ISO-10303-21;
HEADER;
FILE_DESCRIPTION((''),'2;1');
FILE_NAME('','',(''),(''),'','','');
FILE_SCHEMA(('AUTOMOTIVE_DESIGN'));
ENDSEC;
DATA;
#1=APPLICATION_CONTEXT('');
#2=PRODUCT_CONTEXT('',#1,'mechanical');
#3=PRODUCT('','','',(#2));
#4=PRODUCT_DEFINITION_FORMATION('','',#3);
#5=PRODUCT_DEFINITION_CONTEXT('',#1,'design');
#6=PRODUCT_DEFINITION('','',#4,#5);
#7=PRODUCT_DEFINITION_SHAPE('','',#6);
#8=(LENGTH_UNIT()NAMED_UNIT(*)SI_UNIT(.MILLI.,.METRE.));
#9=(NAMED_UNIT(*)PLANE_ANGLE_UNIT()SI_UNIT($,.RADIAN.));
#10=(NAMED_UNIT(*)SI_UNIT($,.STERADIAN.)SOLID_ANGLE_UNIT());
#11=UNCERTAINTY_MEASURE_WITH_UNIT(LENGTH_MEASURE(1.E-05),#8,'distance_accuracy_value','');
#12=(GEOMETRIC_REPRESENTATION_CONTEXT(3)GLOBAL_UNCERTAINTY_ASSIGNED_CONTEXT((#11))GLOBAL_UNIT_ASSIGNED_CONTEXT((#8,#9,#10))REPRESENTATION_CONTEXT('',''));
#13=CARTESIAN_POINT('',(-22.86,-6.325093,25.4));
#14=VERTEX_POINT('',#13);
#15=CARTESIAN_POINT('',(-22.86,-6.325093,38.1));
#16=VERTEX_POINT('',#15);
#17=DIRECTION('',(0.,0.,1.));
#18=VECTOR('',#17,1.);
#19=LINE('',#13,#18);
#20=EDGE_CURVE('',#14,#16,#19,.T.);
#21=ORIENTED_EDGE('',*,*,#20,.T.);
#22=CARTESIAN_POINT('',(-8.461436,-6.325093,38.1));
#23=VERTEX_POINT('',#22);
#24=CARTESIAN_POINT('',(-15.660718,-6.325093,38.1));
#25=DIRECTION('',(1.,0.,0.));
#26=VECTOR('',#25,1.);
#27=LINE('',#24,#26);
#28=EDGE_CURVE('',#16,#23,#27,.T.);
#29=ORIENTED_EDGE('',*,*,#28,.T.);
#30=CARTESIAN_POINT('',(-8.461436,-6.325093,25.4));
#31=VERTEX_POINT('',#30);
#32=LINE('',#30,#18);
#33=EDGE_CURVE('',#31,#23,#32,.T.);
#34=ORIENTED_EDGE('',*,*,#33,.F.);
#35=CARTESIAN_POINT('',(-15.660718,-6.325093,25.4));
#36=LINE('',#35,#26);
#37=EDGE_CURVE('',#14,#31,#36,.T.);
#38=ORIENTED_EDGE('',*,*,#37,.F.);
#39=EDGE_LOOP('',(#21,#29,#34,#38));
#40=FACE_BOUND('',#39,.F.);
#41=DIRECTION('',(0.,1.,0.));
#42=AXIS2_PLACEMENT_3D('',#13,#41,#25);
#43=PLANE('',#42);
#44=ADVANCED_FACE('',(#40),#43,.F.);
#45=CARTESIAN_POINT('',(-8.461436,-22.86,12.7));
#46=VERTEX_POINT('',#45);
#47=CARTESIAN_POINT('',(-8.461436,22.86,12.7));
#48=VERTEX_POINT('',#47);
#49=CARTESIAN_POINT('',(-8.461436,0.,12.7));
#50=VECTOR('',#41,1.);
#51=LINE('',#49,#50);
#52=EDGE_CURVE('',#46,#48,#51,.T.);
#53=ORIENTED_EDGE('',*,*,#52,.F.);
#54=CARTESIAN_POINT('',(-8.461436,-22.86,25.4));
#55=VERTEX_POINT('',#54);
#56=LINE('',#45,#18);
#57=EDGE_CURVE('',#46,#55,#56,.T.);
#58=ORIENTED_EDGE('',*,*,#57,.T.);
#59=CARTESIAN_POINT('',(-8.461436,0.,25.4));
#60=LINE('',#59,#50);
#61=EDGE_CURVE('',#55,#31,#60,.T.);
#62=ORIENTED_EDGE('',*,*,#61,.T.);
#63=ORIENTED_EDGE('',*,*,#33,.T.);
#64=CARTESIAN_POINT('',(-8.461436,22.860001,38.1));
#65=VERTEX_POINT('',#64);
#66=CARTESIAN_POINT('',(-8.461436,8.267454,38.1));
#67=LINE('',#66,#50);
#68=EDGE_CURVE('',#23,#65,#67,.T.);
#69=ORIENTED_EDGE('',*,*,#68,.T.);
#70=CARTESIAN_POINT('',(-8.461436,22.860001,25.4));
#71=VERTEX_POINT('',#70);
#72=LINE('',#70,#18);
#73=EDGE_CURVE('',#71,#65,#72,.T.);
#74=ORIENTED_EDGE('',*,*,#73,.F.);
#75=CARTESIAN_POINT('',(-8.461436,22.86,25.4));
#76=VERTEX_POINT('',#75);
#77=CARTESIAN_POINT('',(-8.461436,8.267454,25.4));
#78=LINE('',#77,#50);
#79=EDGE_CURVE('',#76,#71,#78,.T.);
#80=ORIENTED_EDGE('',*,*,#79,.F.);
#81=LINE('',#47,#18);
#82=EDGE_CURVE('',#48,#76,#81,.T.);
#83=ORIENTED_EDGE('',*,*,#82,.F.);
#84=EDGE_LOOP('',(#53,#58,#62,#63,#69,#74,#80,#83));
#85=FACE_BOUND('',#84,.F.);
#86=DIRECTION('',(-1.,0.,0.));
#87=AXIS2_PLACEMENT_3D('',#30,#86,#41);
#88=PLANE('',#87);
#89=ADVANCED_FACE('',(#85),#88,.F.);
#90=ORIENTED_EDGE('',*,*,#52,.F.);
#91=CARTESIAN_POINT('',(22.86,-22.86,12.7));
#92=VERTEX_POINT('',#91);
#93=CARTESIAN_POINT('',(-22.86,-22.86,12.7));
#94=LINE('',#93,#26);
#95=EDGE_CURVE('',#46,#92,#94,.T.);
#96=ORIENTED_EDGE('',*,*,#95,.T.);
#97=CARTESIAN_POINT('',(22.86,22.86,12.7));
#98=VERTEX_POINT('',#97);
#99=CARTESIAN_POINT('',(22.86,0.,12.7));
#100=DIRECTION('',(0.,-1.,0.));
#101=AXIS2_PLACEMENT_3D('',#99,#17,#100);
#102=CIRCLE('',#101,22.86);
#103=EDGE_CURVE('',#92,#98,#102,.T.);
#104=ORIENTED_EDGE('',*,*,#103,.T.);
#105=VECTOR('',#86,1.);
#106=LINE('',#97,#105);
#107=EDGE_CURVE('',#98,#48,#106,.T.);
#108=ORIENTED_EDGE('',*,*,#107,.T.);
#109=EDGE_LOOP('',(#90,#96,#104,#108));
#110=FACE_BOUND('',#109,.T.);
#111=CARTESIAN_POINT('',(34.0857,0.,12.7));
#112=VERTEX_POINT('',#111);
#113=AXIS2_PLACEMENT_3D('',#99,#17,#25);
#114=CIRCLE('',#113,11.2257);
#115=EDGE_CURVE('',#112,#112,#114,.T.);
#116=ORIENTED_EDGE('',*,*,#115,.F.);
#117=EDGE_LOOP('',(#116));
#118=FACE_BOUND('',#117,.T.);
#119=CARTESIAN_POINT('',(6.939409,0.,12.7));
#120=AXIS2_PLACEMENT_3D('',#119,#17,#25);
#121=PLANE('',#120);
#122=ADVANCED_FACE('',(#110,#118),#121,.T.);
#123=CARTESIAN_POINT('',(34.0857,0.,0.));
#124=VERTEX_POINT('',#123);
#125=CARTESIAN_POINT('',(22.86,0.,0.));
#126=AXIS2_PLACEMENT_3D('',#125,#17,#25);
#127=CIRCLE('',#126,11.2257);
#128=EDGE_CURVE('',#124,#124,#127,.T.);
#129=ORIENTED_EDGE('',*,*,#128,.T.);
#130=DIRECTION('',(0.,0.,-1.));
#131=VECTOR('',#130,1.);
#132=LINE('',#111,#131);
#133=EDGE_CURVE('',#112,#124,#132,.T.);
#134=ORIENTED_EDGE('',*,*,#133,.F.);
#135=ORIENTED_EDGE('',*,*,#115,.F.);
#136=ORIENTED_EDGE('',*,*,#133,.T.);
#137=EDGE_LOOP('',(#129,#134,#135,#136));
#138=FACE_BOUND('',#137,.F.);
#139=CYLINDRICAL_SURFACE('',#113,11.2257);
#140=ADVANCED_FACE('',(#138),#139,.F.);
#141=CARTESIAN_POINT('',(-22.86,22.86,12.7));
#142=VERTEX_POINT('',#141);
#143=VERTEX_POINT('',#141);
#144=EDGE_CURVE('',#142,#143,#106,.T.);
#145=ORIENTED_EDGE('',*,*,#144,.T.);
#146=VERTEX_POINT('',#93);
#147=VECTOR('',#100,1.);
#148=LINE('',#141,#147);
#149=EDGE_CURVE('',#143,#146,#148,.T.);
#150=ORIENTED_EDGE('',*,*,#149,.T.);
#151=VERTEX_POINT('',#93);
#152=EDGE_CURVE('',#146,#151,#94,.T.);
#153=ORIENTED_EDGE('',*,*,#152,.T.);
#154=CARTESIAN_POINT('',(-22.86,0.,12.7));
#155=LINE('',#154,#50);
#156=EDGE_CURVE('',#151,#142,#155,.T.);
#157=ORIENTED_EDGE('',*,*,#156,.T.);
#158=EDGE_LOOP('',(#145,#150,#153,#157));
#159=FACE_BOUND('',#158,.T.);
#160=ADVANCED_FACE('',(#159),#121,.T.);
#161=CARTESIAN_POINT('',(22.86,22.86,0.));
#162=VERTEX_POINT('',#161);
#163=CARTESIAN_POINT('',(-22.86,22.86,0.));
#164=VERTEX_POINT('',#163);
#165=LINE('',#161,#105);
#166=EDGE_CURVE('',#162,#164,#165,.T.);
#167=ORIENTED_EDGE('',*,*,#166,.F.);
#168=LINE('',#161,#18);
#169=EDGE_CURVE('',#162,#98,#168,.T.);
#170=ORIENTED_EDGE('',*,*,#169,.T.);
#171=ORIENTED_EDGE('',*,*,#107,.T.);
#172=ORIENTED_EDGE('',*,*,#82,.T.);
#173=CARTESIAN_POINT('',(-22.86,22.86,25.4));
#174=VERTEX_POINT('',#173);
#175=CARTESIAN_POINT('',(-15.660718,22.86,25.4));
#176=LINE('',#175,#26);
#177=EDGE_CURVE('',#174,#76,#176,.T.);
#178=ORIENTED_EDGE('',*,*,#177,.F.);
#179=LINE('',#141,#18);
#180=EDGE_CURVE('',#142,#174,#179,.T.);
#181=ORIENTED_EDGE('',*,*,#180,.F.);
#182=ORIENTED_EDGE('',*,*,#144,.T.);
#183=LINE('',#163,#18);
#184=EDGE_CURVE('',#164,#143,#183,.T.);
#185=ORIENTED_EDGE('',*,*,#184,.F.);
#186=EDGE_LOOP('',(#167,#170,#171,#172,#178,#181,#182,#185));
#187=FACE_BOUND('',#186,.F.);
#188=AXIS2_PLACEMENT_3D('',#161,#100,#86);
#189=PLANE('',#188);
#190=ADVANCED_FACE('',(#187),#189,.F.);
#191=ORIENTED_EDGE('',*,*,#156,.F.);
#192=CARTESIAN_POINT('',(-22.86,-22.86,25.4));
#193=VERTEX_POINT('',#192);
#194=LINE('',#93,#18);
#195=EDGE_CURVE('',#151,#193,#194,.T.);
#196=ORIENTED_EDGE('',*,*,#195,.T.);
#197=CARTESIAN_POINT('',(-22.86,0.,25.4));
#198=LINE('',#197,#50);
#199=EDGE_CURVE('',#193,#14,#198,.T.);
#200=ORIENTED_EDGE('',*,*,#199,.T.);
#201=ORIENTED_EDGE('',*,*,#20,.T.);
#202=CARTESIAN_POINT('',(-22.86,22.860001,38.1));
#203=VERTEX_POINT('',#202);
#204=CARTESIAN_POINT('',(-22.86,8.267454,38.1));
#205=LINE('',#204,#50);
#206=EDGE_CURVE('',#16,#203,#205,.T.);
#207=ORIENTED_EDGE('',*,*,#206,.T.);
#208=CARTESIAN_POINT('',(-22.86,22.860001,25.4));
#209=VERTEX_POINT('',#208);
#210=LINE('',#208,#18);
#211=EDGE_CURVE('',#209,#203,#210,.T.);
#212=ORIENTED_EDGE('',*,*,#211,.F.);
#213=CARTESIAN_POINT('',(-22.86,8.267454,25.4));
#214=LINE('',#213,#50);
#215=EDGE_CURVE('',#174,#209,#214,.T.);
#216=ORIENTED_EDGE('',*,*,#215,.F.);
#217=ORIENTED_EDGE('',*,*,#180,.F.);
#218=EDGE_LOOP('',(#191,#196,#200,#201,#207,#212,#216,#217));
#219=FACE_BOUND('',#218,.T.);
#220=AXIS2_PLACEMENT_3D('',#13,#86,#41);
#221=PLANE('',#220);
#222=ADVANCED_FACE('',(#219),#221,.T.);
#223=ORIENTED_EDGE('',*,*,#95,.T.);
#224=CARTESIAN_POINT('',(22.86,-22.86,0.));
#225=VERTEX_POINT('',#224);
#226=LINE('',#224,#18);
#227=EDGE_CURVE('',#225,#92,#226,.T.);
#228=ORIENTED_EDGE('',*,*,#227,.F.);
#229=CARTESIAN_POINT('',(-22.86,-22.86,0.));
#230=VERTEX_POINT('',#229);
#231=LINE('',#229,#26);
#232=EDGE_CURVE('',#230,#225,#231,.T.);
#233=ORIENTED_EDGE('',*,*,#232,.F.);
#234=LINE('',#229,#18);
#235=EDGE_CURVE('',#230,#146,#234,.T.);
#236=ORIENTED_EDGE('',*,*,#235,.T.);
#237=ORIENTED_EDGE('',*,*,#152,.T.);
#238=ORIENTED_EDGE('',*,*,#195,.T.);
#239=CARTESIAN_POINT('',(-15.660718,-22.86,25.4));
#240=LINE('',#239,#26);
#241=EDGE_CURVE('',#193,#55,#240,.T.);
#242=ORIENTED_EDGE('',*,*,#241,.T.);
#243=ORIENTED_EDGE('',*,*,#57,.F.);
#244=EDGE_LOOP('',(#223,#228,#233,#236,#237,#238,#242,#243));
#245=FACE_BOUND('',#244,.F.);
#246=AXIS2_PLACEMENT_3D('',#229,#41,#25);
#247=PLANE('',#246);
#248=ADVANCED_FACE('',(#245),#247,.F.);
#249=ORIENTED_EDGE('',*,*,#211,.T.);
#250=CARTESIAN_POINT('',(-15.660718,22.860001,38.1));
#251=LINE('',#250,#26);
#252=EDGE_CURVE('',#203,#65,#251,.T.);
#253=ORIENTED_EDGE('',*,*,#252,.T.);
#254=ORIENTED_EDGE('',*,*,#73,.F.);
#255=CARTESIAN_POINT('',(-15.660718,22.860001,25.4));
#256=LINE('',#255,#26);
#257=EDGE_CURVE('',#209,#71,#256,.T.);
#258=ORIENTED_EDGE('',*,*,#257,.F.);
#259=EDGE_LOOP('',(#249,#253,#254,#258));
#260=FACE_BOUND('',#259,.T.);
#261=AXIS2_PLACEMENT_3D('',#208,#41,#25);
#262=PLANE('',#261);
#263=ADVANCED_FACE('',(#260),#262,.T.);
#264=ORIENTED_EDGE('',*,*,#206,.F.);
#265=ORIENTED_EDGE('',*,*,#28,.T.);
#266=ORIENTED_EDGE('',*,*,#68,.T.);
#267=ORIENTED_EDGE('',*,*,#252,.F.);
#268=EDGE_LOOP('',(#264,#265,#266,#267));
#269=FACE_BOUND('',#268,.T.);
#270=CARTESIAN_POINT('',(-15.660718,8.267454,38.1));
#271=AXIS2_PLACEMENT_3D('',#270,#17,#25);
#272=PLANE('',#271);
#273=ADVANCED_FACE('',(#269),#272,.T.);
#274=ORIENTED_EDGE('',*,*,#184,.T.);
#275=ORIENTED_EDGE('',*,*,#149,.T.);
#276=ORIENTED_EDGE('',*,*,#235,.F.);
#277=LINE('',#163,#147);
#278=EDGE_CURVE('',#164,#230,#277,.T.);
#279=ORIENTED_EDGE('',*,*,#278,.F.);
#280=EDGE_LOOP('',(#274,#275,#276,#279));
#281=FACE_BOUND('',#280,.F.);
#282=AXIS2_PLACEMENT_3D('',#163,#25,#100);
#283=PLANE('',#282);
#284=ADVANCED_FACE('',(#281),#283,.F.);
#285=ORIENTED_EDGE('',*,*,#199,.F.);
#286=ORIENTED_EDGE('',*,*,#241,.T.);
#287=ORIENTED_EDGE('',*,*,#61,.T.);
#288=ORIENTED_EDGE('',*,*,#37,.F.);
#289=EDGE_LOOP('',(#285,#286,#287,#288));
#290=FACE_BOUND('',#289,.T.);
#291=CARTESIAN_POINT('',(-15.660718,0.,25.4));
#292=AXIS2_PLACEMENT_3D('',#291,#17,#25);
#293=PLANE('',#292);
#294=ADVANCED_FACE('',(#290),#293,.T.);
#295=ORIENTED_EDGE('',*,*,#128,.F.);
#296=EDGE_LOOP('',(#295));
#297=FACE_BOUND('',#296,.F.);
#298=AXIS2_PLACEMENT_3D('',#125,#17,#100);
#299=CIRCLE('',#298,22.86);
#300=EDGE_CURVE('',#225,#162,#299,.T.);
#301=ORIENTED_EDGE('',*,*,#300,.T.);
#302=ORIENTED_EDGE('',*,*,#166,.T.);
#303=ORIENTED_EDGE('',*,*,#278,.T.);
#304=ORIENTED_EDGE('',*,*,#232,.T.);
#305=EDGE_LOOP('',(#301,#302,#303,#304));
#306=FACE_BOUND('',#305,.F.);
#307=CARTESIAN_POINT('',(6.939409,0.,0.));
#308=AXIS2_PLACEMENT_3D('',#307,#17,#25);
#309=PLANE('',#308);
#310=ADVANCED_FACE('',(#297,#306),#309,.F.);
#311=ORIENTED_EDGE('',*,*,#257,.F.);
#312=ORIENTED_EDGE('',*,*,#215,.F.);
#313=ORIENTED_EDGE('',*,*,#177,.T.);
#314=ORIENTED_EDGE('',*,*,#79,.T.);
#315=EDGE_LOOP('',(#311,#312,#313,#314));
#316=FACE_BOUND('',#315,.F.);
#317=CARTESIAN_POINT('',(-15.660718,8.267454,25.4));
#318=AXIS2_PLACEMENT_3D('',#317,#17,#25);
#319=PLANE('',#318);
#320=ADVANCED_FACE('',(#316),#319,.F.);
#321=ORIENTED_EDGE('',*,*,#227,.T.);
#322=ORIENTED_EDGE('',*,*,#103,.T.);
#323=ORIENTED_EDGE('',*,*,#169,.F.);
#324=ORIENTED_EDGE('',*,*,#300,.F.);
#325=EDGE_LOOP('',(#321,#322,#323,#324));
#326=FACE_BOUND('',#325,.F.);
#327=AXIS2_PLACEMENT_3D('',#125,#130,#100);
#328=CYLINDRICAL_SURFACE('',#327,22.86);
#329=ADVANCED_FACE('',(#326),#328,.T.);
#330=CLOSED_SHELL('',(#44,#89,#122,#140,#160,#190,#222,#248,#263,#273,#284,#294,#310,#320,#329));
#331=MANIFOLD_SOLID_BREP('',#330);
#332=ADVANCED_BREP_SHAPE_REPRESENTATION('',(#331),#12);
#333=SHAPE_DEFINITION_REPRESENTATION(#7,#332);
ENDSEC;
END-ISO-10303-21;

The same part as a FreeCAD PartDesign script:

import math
import FreeCAD as App
import Part
import Sketcher
from FreeCAD import Vector
Q = App.Units.Quantity

doc = App.newDocument("Part")
body = doc.addObject("PartDesign::Body", "Body")

# Sketch on XY plane
sketch1 = doc.addObject("Sketcher::SketchObject", "Sketch")
body.addObject(sketch1)
sketch1.AttachmentSupport = (doc.XY_Plane, [""])
sketch1.MapMode = "FlatFace"
sketch1.addGeometry([
    Part.LineSegment(Vector(-23, -23, 0), Vector(23, -23, 0)),
    Part.ArcOfCircle(Part.Circle(Vector(23, 0, 0), Vector(0, 0, 1), 23), math.radians(-90), math.radians(90)),
    Part.LineSegment(Vector(23, 23, 0), Vector(-23, 23, 0)),
    Part.LineSegment(Vector(-23, 23, 0), Vector(-23, -23, 0)),
], False)
sketch1.addConstraint([
    Sketcher.Constraint("Tangent", 0, 2, 1, 1),
    Sketcher.Constraint("Tangent", 1, 2, 2, 1),
    Sketcher.Constraint("Coincident", 2, 2, 3, 1),
    Sketcher.Constraint("Coincident", 3, 2, 0, 1),
    Sketcher.Constraint("Horizontal", 0),
    Sketcher.Constraint("Horizontal", 2),
    Sketcher.Constraint("Vertical", 3),
    Sketcher.Constraint("Symmetric", 0, 2, 2, 2, -1, 1),
    Sketcher.Constraint("Equal", 2, 3),
    Sketcher.Constraint("Radius", 1, Q("0.9 in")),
])
pad1 = doc.addObject("PartDesign::Pad", "Pad")
body.addObject(pad1)
pad1.Profile = sketch1
pad1.Length = Q("0.5 in")

# Sketch on XY plane
sketch2 = doc.addObject("Sketcher::SketchObject", "Sketch001")
body.addObject(sketch2)
sketch2.AttachmentSupport = (doc.XY_Plane, [""])
sketch2.MapMode = "FlatFace"
sketch2.AttachmentOffset = App.Placement(Vector(0, 0, 0.5 * 25.4), App.Rotation())
sketch2.addGeometry([
    Part.LineSegment(Vector(-23, 23, 0), Vector(-23, -23, 0)),
    Part.LineSegment(Vector(-23, -23, 0), Vector(-8, -23, 0)),
    Part.LineSegment(Vector(-8, -23, 0), Vector(-8, 23, 0)),
    Part.LineSegment(Vector(-8, 23, 0), Vector(-23, 23, 0)),
], False)
sketch2.addConstraint([
    Sketcher.Constraint("Coincident", 0, 2, 1, 1),
    Sketcher.Constraint("Coincident", 1, 2, 2, 1),
    Sketcher.Constraint("Coincident", 2, 2, 3, 1),
    Sketcher.Constraint("Coincident", 3, 2, 0, 1),
    Sketcher.Constraint("Vertical", 0),
    Sketcher.Constraint("Horizontal", 1),
    Sketcher.Constraint("Vertical", 2),
    Sketcher.Constraint("Horizontal", 3),
    Sketcher.Constraint("DistanceY", 0, 2, 0, 1, Q("1.8 in")),
    Sketcher.Constraint("DistanceX", 0, 2, -1, 1, Q("0.9 in")),
    Sketcher.Constraint("DistanceY", 0, 2, -1, 1, Q("0.9 in")),
    Sketcher.Constraint("DistanceX", 1, 1, 1, 2, 14.398563),
])
pad2 = doc.addObject("PartDesign::Pad", "Pad001")
body.addObject(pad2)
pad2.Profile = sketch2
pad2.Length = Q("0.5 in")

# Sketch on XY plane
sketch3 = doc.addObject("Sketcher::SketchObject", "Sketch002")
body.addObject(sketch3)
sketch3.AttachmentSupport = (doc.XY_Plane, [""])
sketch3.MapMode = "FlatFace"
sketch3.AttachmentOffset = App.Placement(Vector(0, 0, 1 * 25.4), App.Rotation())
sketch3.addGeometry([
    Part.LineSegment(Vector(-23, 23, 0), Vector(-23, -6, 0)),
    Part.LineSegment(Vector(-23, -6, 0), Vector(-8, -6, 0)),
    Part.LineSegment(Vector(-8, -6, 0), Vector(-8, 23, 0)),
    Part.LineSegment(Vector(-8, 23, 0), Vector(-23, 23, 0)),
], False)
sketch3.addConstraint([
    Sketcher.Constraint("Coincident", 0, 2, 1, 1),
    Sketcher.Constraint("Coincident", 1, 2, 2, 1),
    Sketcher.Constraint("Coincident", 2, 2, 3, 1),
    Sketcher.Constraint("Coincident", 3, 2, 0, 1),
    Sketcher.Constraint("Vertical", 0),
    Sketcher.Constraint("Horizontal", 1),
    Sketcher.Constraint("Vertical", 2),
    Sketcher.Constraint("Horizontal", 3),
    Sketcher.Constraint("DistanceX", 0, 2, -1, 1, Q("0.9 in")),
    Sketcher.Constraint("DistanceY", -1, 1, 2, 2, Q("0.9 in")),
    Sketcher.Constraint("DistanceX", 1, 1, 1, 2, 14.398563),
    Sketcher.Constraint("DistanceY", 0, 2, 0, 1, 29.185093),
])
pad3 = doc.addObject("PartDesign::Pad", "Pad002")
body.addObject(pad3)
pad3.Profile = sketch3
pad3.Length = Q("0.5 in")

# Sketch on XY plane
sketch4 = doc.addObject("Sketcher::SketchObject", "Sketch003")
body.addObject(sketch4)
sketch4.AttachmentSupport = (doc.XY_Plane, [""])
sketch4.MapMode = "FlatFace"
sketch4.AttachmentOffset = App.Placement(Vector(0, 0, 0.5 * 25.4), App.Rotation())
sketch4.addGeometry(Part.Circle(Vector(23, 0, 0), Vector(0, 0, 1), 11), False)
sketch4.addConstraint([
    Sketcher.Constraint("PointOnObject", 0, 3, -1),
    Sketcher.Constraint("DistanceX", -1, 1, 0, 3, Q("0.9 in")),
    Sketcher.Constraint("Diameter", 0, 22.4514),
])
pocket1 = doc.addObject("PartDesign::Pocket", "Pocket")
body.addObject(pocket1)
pocket1.Profile = sketch4
pocket1.Length = Q("1 in")

doc.recompute()
